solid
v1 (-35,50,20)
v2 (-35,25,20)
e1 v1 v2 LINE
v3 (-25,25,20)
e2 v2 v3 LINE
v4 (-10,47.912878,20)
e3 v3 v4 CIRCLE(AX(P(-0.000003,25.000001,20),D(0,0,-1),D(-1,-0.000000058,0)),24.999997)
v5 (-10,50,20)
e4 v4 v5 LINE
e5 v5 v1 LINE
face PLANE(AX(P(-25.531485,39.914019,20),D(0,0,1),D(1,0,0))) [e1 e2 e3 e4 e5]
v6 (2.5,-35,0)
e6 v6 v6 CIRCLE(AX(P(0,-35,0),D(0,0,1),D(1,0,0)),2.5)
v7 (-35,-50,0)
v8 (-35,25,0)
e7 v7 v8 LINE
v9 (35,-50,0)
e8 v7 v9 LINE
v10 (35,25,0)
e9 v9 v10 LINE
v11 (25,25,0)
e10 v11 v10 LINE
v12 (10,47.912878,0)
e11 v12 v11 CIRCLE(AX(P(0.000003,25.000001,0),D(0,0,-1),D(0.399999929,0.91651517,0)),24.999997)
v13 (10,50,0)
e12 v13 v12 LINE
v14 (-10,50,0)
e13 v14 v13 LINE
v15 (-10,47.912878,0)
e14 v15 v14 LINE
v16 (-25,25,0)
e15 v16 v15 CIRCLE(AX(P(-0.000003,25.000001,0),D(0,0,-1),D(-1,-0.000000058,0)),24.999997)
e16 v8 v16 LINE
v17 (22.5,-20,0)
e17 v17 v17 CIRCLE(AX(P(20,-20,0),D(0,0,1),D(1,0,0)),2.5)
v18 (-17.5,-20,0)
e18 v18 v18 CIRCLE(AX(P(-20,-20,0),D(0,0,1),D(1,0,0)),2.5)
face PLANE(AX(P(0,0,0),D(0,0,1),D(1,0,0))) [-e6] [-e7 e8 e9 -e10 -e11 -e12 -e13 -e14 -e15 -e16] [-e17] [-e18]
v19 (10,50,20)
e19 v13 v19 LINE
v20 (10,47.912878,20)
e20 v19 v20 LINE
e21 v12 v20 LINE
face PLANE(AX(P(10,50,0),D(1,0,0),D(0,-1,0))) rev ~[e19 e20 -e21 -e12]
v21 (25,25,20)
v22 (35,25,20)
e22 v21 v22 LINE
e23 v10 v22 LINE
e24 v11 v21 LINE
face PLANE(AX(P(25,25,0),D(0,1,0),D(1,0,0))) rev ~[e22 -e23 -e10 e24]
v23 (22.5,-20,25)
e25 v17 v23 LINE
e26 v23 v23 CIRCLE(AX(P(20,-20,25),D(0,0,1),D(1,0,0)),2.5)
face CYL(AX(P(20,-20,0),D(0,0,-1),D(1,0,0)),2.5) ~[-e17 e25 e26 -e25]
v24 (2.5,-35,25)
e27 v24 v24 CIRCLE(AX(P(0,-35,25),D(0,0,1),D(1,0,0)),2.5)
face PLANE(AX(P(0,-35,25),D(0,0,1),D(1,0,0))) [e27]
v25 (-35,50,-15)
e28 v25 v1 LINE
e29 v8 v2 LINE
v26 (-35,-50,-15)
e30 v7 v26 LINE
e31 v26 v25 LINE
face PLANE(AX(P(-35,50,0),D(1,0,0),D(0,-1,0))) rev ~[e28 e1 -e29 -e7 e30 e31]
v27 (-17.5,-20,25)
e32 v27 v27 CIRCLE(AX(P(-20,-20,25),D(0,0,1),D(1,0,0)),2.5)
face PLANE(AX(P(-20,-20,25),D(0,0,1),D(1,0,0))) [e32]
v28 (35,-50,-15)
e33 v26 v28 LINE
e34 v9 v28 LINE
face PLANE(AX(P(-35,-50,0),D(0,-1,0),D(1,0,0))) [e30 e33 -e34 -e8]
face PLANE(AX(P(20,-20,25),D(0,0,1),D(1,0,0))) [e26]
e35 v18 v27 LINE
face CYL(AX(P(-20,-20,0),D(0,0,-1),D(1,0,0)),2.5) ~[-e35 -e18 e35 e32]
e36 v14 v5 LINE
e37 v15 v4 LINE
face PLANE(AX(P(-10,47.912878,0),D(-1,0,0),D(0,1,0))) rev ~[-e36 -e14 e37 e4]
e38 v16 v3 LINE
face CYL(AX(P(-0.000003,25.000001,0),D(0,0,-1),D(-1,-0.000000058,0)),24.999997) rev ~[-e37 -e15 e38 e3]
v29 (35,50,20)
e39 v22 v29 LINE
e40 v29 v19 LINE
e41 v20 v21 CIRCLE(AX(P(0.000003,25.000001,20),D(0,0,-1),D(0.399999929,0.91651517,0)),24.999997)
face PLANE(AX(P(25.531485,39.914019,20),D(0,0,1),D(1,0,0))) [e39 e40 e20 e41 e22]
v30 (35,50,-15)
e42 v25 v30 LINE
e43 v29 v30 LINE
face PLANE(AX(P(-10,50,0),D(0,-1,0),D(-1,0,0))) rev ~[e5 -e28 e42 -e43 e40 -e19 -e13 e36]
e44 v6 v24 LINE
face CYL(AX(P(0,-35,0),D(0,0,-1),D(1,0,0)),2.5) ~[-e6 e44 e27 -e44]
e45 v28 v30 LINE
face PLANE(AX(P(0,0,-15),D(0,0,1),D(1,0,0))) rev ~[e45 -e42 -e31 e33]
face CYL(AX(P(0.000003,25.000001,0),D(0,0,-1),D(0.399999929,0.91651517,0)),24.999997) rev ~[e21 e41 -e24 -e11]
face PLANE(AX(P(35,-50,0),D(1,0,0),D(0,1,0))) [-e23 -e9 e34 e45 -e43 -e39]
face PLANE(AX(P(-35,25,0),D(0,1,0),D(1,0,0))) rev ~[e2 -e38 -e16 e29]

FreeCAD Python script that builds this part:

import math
import FreeCAD as App
import Part
import Sketcher


def add_polygon(sketch, points):
    """Adds a closed chain of lines whose ends are joined by coincident constraints."""
    first, n = sketch.GeometryCount, len(points)
    for a, b in zip(points, points[1:] + points[:1]):
        sketch.addGeometry(Part.LineSegment(App.Vector(*a, 0), App.Vector(*b, 0)), False)
    for i in range(n):
        sketch.addConstraint(Sketcher.Constraint("Coincident", first + i, 2, first + (i + 1) % n, 1))

doc = App.newDocument("Part")
body = doc.addObject("PartDesign::Body", "Body")

# Sketch on XY plane
sketch1 = body.newObject("Sketcher::SketchObject", "Sketch")
sketch1.AttachmentSupport = (doc.getObject("XY_Plane"), [""])
sketch1.MapMode = "FlatFace"
add_polygon(sketch1, [(-35, 50), (-35, -50), (35, -50), (35, 50)])  # lines 0-3
sketch1.addConstraint(Sketcher.Constraint("Vertical", 0))
sketch1.addConstraint(Sketcher.Constraint("Horizontal", 1))
sketch1.addConstraint(Sketcher.Constraint("Vertical", 2))
sketch1.addConstraint(Sketcher.Constraint("Horizontal", 3))
sketch1.addConstraint(Sketcher.Constraint("Symmetric", 0, 2, 2, 2, -1, 1))
sketch1.addConstraint(Sketcher.Constraint("DistanceX", 1, 1, 1, 2, 70.0))
sketch1.addConstraint(Sketcher.Constraint("DistanceY", 0, 2, 0, 1, 100.0))
pad1 = body.newObject("PartDesign::Pad", "Pad")
pad1.Profile = sketch1
pad1.Length = 15
pad1.Reversed = True

# Sketch on XY plane
sketch2 = body.newObject("Sketcher::SketchObject", "Sketch001")
sketch2.AttachmentSupport = (doc.getObject("XY_Plane"), [""])
sketch2.MapMode = "FlatFace"
sketch2.addGeometry(Part.LineSegment(App.Vector(-10, 47.9, 0), App.Vector(-10, 50, 0)), False)
sketch2.addGeometry(Part.LineSegment(App.Vector(-10, 50, 0), App.Vector(-35, 50, 0)), False)
sketch2.addGeometry(Part.LineSegment(App.Vector(-35, 50, 0), App.Vector(-35, 25, 0)), False)
sketch2.addGeometry(Part.LineSegment(App.Vector(-35, 25, 0), App.Vector(-25, 25, 0)), False)
sketch2.addGeometry(Part.ArcOfCircle(Part.Circle(App.Vector(0, 25, 0), App.Vector(0, 0, 1), 25), math.radians(114), math.radians(180)), False)
sketch2.addGeometry(Part.ArcOfCircle(Part.Circle(App.Vector(0, 25, 0), App.Vector(0, 0, 1), 25), math.radians(0), math.radians(66)), False)
sketch2.addGeometry(Part.LineSegment(App.Vector(25, 25, 0), App.Vector(35, 25, 0)), False)
sketch2.addGeometry(Part.LineSegment(App.Vector(35, 25, 0), App.Vector(35, 50, 0)), False)
sketch2.addGeometry(Part.LineSegment(App.Vector(35, 50, 0), App.Vector(10, 50, 0)), False)
sketch2.addGeometry(Part.LineSegment(App.Vector(10, 50, 0), App.Vector(10, 47.9, 0)), False)
sketch2.addConstraint(Sketcher.Constraint("Coincident", 0, 2, 1, 1))
sketch2.addConstraint(Sketcher.Constraint("Coincident", 1, 2, 2, 1))
sketch2.addConstraint(Sketcher.Constraint("Coincident", 2, 2, 3, 1))
sketch2.addConstraint(Sketcher.Constraint("Coincident", 3, 2, 4, 2))
sketch2.addConstraint(Sketcher.Constraint("Coincident", 4, 1, 0, 1))
sketch2.addConstraint(Sketcher.Constraint("Coincident", 5, 1, 6, 1))
sketch2.addConstraint(Sketcher.Constraint("Coincident", 6, 2, 7, 1))
sketch2.addConstraint(Sketcher.Constraint("Coincident", 7, 2, 8, 1))
sketch2.addConstraint(Sketcher.Constraint("Coincident", 8, 2, 9, 1))
sketch2.addConstraint(Sketcher.Constraint("Coincident", 9, 2, 5, 2))
sketch2.addConstraint(Sketcher.Constraint("Vertical", 0))
sketch2.addConstraint(Sketcher.Constraint("Horizontal", 1))
sketch2.addConstraint(Sketcher.Constraint("Vertical", 2))
sketch2.addConstraint(Sketcher.Constraint("Horizontal", 3))
sketch2.addConstraint(Sketcher.Constraint("Horizontal", 6))
sketch2.addConstraint(Sketcher.Constraint("Vertical", 7))
sketch2.addConstraint(Sketcher.Constraint("Horizontal", 8))
sketch2.addConstraint(Sketcher.Constraint("Vertical", 9))
sketch2.addConstraint(Sketcher.Constraint("Coincident", 5, 3, 4, 3))
sketch2.addConstraint(Sketcher.Constraint("Equal", 4, 5))
sketch2.addConstraint(Sketcher.Constraint("Symmetric", 3, 2, 5, 1, -2))
sketch2.addConstraint(Sketcher.Constraint("Symmetric", 1, 2, 7, 2, -2))
sketch2.addConstraint(Sketcher.Constraint("Horizontal", 5, 3, 2, 2))
sketch2.addConstraint(Sketcher.Constraint("Horizontal", 4, 1, 9, 2))
sketch2.addConstraint(Sketcher.Constraint("Equal", 8, 2))
sketch2.addConstraint(Sketcher.Constraint("DistanceX", 1, 2, 1, 1, 25.0))
sketch2.addConstraint(Sketcher.Constraint("DistanceX", 3, 1, 3, 2, 10.0))
sketch2.addConstraint(Sketcher.Constraint("DistanceY", -1, 1, 4, 3, 25.000001))
sketch2.addConstraint(Sketcher.Constraint("DistanceX", 0, 2, -1, 1, 10.0))
pad2 = body.newObject("PartDesign::Pad", "Pad001")
pad2.Profile = sketch2
pad2.Length = 20

# Sketch on XY plane
sketch3 = body.newObject("Sketcher::SketchObject", "Sketch002")
sketch3.AttachmentSupport = (doc.getObject("XY_Plane"), [""])
sketch3.MapMode = "FlatFace"
sketch3.addGeometry(Part.Circle(App.Vector(-20, -20, 0), App.Vector(0, 0, 1), 2.5), False)
sketch3.addGeometry(Part.Circle(App.Vector(0, -35, 0), App.Vector(0, 0, 1), 2.5), False)
sketch3.addGeometry(Part.Circle(App.Vector(20, -20, 0), App.Vector(0, 0, 1), 2.5), False)
sketch3.addConstraint(Sketcher.Constraint("Equal", 0, 1))
sketch3.addConstraint(Sketcher.Constraint("Equal", 1, 2))
sketch3.addConstraint(Sketcher.Constraint("Symmetric", 0, 3, 2, 3, -2))
sketch3.addConstraint(Sketcher.Constraint("PointOnObject", 1, 3, -2))
sketch3.addConstraint(Sketcher.Constraint("Diameter", 0, 5.0))
sketch3.addConstraint(Sketcher.Constraint("DistanceX", 0, 3, -1, 1, 20.0))
sketch3.addConstraint(Sketcher.Constraint("DistanceY", 0, 3, -1, 1, 20.0))
sketch3.addConstraint(Sketcher.Constraint("DistanceY", 1, 3, -1, 1, 35.0))
pad3 = body.newObject("PartDesign::Pad", "Pad002")
pad3.Profile = sketch3
pad3.Length = 25

doc.recompute()
